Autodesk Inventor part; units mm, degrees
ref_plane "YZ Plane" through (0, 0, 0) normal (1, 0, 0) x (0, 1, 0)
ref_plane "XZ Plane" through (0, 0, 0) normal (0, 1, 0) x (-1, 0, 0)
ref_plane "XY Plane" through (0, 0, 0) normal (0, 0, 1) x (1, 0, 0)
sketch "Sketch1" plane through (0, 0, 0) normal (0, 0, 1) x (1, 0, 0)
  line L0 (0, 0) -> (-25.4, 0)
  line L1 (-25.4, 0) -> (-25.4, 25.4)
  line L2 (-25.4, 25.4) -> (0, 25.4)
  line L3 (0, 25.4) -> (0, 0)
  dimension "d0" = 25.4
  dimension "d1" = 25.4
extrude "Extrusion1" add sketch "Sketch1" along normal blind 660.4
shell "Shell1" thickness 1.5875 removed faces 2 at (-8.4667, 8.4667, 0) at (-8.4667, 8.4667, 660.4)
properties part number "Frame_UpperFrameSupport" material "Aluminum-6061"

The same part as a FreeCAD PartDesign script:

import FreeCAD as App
import Part
import Sketcher

V = App.Vector
Q = App.Units.Quantity


def faces_at(feature, points):
    """Names of the faces that lie closest to the given points."""
    faces = feature.Shape.Faces
    near = lambda p: min(range(len(faces)), key=lambda i: faces[i].distToShape(Part.Vertex(*p))[0])
    return sorted({f"Face{near(p) + 1}" for p in points})

doc = App.newDocument("Part")
body = doc.addObject("PartDesign::Body", "Body")

# Sketch on XY plane
sketch1 = doc.addObject("Sketcher::SketchObject", "Sketch")
body.addObject(sketch1)
sketch1.AttachmentSupport = (doc.XY_Plane, [""])
sketch1.MapMode = "FlatFace"
sketch1.addGeometry(Part.LineSegment(V(-25, 0, 0), V(0, 0, 0)), False)
sketch1.addGeometry(Part.LineSegment(V(0, 0, 0), V(0, 25, 0)), False)
sketch1.addGeometry(Part.LineSegment(V(0, 25, 0), V(-25, 25, 0)), False)
sketch1.addGeometry(Part.LineSegment(V(-25, 25, 0), V(-25, 0, 0)), False)
sketch1.addConstraint(Sketcher.Constraint("Coincident", 0, 2, 1, 1))
sketch1.addConstraint(Sketcher.Constraint("Coincident", 1, 2, 2, 1))
sketch1.addConstraint(Sketcher.Constraint("Coincident", 2, 2, 3, 1))
sketch1.addConstraint(Sketcher.Constraint("Coincident", 3, 2, 0, 1))
sketch1.addConstraint(Sketcher.Constraint("Horizontal", 0))
sketch1.addConstraint(Sketcher.Constraint("Vertical", 1))
sketch1.addConstraint(Sketcher.Constraint("Horizontal", 2))
sketch1.addConstraint(Sketcher.Constraint("Vertical", 3))
sketch1.addConstraint(Sketcher.Constraint("Coincident", 0, 2, -1, 1))
sketch1.addConstraint(Sketcher.Constraint("Equal", 2, 1))
sketch1.addConstraint(Sketcher.Constraint("DistanceX", 0, 1, 0, 2, Q("1 in")))
pad1 = doc.addObject("PartDesign::Pad", "Pad")
body.addObject(pad1)
pad1.Profile = sketch1
pad1.Length = Q("26 in")
doc.recompute()

thickness = doc.addObject("PartDesign::Thickness", "Thickness")
body.addObject(thickness)
thickness.Base = (pad1, faces_at(pad1, [(-8.467, 8.467, 0), (-8.467, 8.467, 660.4)]))
thickness.Value = Q("0.0625 in")
thickness.Reversed = True
thickness.Join = "Intersection"

doc.recompute()
